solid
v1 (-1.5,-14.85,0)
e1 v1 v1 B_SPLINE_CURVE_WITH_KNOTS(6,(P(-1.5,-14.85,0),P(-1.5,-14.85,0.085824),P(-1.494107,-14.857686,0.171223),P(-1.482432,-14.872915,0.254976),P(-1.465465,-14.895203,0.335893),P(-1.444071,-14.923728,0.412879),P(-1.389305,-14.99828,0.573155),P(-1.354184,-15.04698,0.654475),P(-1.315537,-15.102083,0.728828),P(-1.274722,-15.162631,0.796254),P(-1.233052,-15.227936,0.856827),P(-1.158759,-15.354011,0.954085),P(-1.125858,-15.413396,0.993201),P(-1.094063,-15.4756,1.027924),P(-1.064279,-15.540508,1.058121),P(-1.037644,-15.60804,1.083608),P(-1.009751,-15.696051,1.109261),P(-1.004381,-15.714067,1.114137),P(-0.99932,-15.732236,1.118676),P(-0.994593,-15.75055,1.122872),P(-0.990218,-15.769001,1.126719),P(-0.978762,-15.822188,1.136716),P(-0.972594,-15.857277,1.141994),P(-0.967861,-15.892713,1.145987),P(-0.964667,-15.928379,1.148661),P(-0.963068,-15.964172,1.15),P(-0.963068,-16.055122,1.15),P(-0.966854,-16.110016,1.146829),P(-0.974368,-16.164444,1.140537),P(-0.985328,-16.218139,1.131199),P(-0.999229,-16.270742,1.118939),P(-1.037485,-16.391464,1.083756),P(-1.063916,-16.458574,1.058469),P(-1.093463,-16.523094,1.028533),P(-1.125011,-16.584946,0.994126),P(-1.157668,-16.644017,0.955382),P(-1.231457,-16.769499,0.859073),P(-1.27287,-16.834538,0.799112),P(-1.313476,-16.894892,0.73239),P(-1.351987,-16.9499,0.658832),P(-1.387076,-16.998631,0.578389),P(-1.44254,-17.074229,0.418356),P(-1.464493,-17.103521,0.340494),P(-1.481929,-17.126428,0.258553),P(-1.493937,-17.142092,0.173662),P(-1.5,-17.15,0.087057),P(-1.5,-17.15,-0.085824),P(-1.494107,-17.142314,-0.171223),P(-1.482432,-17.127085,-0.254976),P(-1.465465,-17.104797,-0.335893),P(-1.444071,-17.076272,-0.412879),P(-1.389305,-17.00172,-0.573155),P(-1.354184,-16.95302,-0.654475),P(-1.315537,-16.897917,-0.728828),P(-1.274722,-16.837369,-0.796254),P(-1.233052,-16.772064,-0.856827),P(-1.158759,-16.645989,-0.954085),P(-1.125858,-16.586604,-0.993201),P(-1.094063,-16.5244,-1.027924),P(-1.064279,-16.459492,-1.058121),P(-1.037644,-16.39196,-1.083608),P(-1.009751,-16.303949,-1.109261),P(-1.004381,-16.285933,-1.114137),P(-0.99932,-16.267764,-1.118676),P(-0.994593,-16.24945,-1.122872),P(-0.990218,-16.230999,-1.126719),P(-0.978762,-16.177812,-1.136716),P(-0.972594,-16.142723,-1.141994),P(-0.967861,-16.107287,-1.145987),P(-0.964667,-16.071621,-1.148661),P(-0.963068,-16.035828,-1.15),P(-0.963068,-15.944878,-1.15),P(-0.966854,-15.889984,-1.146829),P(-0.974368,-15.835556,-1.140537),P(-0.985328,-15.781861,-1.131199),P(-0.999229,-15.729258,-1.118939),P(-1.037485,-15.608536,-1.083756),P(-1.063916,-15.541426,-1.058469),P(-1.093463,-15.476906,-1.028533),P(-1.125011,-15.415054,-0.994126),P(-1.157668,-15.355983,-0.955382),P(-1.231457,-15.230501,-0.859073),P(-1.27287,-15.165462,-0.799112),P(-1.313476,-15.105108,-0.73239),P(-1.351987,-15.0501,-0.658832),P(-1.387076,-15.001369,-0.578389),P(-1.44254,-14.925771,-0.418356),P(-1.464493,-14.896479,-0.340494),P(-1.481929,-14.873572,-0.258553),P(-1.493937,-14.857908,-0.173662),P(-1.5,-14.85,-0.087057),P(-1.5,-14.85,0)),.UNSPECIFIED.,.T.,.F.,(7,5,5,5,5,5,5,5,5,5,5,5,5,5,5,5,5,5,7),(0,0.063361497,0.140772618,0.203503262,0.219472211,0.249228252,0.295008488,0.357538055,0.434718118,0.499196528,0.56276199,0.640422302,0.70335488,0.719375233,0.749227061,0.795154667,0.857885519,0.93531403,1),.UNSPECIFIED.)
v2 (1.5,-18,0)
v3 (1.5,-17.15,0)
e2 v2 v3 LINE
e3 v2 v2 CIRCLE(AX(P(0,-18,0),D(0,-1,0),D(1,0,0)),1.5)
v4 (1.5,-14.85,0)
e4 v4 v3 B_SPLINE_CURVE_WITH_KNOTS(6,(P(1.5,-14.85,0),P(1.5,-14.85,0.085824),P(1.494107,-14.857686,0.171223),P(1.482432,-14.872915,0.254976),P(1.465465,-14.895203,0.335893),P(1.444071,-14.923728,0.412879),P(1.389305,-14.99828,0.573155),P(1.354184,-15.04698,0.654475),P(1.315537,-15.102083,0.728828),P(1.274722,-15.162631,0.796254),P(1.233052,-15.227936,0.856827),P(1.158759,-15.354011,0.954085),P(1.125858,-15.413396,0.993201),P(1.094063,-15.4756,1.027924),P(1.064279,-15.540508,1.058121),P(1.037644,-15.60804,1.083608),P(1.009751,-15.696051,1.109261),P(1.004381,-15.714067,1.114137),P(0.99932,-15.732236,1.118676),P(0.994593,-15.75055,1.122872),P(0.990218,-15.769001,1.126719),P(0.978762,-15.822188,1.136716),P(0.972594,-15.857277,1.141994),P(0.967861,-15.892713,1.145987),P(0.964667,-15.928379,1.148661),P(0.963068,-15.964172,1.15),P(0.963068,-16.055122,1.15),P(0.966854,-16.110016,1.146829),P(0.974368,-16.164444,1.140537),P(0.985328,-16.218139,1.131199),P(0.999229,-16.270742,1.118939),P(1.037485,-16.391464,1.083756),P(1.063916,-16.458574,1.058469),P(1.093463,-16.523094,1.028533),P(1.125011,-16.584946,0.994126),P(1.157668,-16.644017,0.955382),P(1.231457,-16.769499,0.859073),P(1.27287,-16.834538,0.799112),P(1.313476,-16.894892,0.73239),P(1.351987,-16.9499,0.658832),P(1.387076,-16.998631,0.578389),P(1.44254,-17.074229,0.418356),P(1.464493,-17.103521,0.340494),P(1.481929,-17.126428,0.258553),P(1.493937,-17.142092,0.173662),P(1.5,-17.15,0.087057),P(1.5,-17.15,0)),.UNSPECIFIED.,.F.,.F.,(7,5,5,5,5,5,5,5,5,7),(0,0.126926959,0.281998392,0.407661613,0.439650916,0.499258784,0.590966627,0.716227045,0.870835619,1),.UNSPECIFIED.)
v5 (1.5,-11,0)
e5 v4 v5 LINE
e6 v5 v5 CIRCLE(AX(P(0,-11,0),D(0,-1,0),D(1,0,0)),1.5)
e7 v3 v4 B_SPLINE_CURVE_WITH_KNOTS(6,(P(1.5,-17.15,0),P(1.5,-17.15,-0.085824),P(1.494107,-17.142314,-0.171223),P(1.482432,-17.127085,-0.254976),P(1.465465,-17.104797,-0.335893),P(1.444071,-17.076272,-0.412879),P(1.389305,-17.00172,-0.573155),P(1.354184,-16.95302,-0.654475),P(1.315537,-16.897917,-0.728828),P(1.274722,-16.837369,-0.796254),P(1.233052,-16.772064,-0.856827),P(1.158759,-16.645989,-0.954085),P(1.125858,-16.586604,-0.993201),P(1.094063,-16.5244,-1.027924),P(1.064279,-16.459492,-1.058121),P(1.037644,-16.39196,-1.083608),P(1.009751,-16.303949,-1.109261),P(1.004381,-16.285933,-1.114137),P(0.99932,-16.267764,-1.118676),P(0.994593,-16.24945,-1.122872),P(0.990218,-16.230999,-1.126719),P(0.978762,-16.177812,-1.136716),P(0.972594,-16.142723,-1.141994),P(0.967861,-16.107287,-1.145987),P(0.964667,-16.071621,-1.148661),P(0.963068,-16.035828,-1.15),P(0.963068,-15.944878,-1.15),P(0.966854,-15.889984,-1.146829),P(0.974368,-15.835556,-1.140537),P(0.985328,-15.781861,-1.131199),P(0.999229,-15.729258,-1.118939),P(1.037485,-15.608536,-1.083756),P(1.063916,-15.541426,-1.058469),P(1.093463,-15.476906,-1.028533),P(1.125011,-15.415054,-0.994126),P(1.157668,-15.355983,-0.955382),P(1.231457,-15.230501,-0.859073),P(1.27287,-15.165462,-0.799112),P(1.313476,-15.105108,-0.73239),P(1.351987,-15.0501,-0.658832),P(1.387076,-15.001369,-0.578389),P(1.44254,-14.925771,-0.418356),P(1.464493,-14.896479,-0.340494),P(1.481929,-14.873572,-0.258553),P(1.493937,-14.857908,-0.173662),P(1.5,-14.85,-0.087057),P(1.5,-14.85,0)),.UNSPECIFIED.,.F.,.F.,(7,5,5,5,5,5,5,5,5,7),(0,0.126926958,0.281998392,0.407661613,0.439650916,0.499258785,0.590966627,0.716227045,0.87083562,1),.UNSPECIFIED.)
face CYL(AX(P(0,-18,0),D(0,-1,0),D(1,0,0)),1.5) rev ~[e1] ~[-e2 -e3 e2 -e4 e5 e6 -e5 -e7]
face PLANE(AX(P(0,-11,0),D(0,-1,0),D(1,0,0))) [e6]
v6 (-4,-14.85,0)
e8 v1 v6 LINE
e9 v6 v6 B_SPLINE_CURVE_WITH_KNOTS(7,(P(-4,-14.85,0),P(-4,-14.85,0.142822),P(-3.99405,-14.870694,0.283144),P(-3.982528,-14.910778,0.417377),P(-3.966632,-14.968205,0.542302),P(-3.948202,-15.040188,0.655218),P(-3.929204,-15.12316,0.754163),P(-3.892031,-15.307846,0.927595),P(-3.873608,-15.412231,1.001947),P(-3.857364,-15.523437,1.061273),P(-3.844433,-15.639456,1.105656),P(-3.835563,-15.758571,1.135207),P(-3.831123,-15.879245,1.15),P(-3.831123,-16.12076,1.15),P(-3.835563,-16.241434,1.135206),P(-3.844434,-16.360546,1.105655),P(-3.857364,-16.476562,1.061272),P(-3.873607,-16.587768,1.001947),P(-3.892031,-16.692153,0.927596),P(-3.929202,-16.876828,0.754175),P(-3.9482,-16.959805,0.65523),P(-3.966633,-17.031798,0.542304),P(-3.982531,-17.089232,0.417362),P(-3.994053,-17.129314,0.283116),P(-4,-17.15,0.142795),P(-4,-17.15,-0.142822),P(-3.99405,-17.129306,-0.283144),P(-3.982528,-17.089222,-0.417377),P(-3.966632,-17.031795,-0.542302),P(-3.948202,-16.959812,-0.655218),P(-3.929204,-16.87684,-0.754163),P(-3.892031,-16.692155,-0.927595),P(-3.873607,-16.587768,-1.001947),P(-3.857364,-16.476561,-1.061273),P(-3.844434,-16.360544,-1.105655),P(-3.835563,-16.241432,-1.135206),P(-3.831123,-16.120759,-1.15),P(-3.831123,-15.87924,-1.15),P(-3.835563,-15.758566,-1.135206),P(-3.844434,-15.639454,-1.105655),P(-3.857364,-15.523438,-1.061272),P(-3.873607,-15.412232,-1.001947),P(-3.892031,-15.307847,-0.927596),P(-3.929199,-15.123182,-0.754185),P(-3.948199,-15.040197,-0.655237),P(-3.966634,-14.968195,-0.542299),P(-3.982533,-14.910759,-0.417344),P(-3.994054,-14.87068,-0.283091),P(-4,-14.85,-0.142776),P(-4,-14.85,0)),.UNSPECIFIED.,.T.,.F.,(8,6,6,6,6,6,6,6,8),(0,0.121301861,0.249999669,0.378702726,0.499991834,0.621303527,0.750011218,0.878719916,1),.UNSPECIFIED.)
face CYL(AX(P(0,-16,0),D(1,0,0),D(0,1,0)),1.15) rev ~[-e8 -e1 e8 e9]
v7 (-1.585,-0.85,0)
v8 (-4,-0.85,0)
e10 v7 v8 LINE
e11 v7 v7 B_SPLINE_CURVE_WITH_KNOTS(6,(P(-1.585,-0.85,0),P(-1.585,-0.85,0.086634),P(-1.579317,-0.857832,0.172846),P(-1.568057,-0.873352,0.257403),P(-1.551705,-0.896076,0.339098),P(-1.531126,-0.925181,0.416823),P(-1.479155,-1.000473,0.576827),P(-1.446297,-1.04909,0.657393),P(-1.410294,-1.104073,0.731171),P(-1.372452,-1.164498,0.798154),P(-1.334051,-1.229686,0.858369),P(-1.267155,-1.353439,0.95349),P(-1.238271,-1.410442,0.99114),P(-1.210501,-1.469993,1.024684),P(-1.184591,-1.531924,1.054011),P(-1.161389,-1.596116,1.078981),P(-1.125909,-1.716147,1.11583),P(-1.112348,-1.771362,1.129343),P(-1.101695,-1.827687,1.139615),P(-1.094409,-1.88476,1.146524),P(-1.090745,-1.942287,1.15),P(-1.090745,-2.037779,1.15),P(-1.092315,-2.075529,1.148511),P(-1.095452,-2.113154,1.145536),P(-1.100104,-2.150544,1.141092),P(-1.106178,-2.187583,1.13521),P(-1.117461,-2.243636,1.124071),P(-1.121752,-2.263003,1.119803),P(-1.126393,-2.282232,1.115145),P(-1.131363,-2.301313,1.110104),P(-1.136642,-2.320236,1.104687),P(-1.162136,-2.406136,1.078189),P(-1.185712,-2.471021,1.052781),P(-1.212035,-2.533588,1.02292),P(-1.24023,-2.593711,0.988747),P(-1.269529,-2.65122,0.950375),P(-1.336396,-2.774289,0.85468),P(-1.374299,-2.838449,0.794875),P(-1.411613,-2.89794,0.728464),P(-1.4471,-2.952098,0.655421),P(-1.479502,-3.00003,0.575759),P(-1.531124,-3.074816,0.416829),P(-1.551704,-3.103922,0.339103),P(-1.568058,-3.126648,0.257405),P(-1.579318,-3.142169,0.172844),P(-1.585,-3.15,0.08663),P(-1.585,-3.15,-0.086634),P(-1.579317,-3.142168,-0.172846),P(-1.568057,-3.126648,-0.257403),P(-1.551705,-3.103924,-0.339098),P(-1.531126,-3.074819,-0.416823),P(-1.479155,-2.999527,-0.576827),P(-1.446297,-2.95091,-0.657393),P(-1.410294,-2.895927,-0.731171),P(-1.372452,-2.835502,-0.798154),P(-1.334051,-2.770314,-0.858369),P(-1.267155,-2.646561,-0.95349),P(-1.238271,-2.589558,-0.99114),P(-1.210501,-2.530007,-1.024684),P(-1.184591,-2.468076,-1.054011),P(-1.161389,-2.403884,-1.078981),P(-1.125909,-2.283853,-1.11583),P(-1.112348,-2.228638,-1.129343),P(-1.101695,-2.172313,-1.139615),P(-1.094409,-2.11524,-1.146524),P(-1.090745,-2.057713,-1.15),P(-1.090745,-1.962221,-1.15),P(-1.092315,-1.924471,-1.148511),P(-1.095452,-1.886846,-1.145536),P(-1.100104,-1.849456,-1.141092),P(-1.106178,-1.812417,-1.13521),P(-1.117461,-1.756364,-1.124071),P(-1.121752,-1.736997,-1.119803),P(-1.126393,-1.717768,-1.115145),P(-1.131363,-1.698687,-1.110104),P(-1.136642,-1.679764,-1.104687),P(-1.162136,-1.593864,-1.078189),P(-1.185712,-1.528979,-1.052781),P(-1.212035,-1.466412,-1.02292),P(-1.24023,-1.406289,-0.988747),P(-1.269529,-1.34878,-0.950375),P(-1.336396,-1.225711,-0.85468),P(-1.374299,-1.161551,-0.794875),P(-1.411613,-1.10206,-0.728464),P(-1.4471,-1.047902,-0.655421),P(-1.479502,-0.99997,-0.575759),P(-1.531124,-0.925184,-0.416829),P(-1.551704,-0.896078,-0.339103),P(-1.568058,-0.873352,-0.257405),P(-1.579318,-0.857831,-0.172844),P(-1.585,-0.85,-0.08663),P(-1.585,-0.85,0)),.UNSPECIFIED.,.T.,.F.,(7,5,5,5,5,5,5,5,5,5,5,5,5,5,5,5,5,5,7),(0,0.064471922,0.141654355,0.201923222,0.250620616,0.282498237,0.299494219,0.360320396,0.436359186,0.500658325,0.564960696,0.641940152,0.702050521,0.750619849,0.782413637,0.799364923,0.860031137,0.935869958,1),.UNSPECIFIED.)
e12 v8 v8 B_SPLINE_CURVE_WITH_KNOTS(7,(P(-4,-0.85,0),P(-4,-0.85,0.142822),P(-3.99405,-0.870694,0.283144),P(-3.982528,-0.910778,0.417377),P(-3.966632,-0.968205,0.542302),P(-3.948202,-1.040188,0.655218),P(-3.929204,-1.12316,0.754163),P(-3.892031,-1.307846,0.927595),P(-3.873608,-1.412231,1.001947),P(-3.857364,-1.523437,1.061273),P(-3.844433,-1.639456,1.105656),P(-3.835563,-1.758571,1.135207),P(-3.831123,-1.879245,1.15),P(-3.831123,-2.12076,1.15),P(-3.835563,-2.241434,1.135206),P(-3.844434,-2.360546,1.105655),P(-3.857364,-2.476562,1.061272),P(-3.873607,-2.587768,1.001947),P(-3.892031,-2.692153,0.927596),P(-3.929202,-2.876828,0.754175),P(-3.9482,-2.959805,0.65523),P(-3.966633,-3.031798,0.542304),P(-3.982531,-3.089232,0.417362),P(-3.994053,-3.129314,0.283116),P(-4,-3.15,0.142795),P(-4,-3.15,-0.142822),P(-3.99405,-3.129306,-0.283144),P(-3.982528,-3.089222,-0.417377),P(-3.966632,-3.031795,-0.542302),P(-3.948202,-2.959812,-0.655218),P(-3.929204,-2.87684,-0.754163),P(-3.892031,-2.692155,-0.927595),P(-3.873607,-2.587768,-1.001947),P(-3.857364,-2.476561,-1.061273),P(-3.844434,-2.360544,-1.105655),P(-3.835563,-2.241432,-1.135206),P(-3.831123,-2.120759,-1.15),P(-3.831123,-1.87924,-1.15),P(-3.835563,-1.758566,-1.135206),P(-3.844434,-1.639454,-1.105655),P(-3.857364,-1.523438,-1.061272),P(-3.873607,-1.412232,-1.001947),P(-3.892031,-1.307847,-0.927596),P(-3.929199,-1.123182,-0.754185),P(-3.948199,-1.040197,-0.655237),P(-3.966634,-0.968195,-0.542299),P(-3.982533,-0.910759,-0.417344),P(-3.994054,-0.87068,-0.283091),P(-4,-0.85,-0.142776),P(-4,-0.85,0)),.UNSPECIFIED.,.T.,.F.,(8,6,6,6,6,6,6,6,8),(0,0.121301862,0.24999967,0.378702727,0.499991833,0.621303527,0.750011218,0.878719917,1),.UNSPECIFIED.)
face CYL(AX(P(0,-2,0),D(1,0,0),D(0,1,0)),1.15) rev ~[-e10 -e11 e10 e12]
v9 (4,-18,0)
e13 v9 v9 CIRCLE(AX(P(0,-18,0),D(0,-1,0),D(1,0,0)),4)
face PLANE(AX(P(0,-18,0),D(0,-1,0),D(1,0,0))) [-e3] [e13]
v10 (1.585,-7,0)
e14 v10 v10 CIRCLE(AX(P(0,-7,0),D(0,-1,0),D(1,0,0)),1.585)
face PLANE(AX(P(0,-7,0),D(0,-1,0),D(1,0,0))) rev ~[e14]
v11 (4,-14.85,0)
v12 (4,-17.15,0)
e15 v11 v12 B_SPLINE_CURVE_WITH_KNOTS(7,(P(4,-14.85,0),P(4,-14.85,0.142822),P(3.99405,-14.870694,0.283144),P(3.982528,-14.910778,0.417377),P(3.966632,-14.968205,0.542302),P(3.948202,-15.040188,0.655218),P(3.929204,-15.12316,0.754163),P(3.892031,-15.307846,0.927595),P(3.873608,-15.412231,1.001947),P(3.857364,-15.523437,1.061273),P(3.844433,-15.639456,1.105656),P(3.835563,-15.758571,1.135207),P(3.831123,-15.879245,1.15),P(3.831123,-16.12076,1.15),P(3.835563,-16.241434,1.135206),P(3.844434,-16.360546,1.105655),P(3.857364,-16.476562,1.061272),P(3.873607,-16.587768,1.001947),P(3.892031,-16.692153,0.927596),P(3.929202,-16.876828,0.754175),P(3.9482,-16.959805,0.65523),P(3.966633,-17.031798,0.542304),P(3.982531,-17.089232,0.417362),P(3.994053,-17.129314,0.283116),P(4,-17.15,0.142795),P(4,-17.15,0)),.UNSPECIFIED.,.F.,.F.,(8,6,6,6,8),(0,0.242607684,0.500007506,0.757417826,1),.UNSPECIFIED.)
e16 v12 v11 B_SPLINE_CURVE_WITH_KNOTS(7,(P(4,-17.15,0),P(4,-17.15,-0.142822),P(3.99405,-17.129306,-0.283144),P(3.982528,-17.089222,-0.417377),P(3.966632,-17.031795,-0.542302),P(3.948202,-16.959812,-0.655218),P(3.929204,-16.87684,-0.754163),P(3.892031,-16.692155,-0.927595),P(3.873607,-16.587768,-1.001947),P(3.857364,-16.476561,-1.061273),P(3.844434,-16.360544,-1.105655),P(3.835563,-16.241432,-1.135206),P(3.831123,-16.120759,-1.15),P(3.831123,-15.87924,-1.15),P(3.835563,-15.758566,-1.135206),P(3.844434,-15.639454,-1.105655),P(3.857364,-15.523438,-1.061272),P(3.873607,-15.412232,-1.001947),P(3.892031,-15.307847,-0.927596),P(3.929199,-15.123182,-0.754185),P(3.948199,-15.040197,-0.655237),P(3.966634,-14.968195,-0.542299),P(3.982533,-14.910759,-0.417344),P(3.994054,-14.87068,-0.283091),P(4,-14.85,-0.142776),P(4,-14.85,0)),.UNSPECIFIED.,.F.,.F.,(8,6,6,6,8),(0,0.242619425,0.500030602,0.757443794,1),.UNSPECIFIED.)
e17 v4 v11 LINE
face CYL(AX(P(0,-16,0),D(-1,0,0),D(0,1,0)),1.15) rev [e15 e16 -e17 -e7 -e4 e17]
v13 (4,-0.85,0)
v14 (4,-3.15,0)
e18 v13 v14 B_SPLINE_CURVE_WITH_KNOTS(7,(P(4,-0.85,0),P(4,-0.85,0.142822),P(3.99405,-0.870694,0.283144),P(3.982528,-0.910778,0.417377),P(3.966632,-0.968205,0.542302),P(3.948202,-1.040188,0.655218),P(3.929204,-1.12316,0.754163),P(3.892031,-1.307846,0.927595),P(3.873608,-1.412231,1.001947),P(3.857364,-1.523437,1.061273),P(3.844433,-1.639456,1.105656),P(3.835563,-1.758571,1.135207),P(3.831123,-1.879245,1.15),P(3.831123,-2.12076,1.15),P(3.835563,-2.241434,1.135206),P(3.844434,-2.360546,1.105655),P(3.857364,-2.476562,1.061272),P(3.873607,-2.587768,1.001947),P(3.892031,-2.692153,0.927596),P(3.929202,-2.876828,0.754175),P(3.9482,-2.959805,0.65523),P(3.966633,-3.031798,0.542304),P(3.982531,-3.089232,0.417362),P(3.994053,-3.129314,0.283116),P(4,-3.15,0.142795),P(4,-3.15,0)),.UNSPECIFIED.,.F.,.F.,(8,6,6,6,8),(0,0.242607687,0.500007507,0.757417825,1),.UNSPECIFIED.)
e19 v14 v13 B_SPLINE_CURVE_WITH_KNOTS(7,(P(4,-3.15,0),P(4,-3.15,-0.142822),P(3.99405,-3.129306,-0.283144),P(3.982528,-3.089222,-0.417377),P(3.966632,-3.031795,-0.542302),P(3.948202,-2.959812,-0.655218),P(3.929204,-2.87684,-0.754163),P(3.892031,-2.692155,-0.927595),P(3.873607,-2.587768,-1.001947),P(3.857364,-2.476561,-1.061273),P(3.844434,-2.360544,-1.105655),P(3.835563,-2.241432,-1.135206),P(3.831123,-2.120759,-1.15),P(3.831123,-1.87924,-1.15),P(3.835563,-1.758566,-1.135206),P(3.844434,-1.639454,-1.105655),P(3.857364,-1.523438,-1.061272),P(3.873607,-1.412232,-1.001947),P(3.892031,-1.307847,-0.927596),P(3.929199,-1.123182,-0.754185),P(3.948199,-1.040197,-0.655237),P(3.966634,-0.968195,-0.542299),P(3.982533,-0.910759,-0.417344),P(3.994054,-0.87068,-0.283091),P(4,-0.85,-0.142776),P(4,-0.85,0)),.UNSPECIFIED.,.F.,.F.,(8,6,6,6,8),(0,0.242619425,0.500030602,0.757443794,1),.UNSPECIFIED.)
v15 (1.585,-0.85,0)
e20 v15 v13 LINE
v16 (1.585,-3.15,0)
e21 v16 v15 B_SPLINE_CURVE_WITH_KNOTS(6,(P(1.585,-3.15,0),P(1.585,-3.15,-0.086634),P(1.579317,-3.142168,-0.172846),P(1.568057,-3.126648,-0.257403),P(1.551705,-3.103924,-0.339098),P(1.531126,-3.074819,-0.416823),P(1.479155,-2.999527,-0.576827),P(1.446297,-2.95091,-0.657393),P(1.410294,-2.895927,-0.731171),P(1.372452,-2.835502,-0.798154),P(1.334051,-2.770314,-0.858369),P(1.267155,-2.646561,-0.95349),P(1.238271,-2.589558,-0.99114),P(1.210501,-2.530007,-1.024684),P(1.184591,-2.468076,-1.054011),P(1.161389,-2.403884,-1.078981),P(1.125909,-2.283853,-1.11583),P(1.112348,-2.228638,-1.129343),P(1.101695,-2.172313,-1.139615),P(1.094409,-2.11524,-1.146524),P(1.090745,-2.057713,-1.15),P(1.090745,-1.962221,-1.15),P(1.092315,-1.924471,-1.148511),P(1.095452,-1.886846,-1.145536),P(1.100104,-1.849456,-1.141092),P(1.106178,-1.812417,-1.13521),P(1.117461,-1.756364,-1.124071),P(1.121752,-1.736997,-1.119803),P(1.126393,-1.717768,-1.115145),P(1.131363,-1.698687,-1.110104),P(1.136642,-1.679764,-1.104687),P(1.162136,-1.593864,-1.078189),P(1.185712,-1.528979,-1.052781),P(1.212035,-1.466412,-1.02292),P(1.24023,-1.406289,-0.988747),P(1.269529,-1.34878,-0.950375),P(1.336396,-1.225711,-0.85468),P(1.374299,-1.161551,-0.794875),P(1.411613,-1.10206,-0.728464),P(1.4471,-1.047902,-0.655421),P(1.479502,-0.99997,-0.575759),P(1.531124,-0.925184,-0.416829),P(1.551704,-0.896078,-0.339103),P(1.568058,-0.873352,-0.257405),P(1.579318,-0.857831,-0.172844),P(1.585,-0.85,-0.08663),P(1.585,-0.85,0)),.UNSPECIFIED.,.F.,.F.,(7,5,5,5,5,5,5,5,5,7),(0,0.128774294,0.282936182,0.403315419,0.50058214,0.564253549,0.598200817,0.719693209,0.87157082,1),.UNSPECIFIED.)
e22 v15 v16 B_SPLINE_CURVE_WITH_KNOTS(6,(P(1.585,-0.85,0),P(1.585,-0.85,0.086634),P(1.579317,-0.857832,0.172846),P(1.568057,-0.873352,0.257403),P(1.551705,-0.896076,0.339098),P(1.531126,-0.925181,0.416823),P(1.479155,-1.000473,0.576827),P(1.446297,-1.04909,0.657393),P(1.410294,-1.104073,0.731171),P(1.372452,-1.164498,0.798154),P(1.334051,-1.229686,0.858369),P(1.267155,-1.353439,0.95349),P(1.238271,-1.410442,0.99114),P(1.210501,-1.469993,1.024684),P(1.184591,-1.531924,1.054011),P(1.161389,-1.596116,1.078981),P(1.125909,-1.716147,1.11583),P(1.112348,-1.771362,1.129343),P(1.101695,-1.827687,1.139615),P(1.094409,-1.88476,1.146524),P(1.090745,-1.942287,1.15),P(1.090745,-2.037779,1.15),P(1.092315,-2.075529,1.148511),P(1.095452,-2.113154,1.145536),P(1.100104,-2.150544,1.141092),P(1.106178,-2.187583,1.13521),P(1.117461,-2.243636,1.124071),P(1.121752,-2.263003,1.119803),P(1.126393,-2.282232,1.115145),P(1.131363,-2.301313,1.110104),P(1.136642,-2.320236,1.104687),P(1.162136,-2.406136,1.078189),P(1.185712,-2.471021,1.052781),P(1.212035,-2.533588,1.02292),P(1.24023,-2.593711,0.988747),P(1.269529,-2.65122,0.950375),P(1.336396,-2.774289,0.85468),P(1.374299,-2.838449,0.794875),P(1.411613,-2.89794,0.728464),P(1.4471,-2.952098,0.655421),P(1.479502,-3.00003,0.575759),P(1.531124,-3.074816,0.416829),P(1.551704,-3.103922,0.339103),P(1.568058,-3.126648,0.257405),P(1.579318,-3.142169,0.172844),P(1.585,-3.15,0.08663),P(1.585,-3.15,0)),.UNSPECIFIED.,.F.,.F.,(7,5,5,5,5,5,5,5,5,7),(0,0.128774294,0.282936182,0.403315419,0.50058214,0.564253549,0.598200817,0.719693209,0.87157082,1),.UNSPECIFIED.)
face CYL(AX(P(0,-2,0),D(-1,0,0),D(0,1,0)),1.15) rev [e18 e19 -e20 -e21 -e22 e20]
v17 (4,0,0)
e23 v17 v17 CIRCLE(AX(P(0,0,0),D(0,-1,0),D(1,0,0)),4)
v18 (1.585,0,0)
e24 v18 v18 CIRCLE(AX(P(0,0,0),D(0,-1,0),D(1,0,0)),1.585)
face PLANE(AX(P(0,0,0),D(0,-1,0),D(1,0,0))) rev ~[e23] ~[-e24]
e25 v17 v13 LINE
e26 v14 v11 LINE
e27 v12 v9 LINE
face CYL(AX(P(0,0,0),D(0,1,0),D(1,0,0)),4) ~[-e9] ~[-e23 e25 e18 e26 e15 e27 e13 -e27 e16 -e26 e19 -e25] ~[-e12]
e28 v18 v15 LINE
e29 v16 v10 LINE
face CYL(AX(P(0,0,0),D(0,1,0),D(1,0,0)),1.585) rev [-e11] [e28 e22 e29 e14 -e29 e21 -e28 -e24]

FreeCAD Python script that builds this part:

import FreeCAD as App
import Part
import Sketcher

V = App.Vector

doc = App.newDocument("Part")
body = doc.addObject("PartDesign::Body", "Body")

# Sketch on XZ plane
sketch1 = body.newObject("Sketcher::SketchObject", "Sketch")
sketch1.AttachmentSupport = (doc.getObject("XZ_Plane"), [""])
sketch1.MapMode = "FlatFace"
sketch1.addGeometry(Part.Circle(V(0, 0, 0), V(0, 0, 1), 4), False)
sketch1.addConstraint(Sketcher.Constraint("Coincident", 0, 3, -1, 1))
sketch1.addConstraint(Sketcher.Constraint("Diameter", 0, 8.0))
pad1 = body.newObject("PartDesign::Pad", "Pad")
pad1.Profile = sketch1
pad1.Length = 18

# Sketch on YZ plane
sketch2 = body.newObject("Sketcher::SketchObject", "Sketch001")
sketch2.AttachmentSupport = (doc.getObject("YZ_Plane"), [""])
sketch2.MapMode = "FlatFace"
sketch2.addGeometry(Part.Circle(V(-16, 0, 0), V(0, 0, 1), 1.1), False)
sketch2.addGeometry(Part.Circle(V(-2, 0, 0), V(0, 0, 1), 1.1), False)
sketch2.addConstraint(Sketcher.Constraint("Equal", 0, 1))
sketch2.addConstraint(Sketcher.Constraint("PointOnObject", 0, 3, -1))
sketch2.addConstraint(Sketcher.Constraint("PointOnObject", 1, 3, -1))
sketch2.addConstraint(Sketcher.Constraint("Diameter", 0, 2.3))
sketch2.addConstraint(Sketcher.Constraint("DistanceX", 0, 3, -1, 1, 16.0))
sketch2.addConstraint(Sketcher.Constraint("DistanceX", 1, 3, -1, 1, 2.0))
pocket1 = body.newObject("PartDesign::Pocket", "Pocket")
pocket1.Profile = sketch2
pocket1.Type = "ThroughAll"
pocket1.Midplane = True

# Sketch on XZ plane
sketch3 = body.newObject("Sketcher::SketchObject", "Sketch002")
sketch3.AttachmentSupport = (doc.getObject("XZ_Plane"), [""])
sketch3.MapMode = "FlatFace"
sketch3.addGeometry(Part.Circle(V(0, 0, 0), V(0, 0, 1), 1.6), False)
sketch3.addConstraint(Sketcher.Constraint("Coincident", 0, 3, -1, 1))
sketch3.addConstraint(Sketcher.Constraint("Diameter", 0, 3.17))
pocket2 = body.newObject("PartDesign::Pocket", "Pocket001")
pocket2.Profile = sketch3
pocket2.Length = 7
pocket2.Reversed = True

# Sketch on XZ plane
sketch4 = body.newObject("Sketcher::SketchObject", "Sketch003")
sketch4.AttachmentSupport = (doc.getObject("XZ_Plane"), [""])
sketch4.MapMode = "FlatFace"
sketch4.AttachmentOffset = App.Placement(V(0, 0, 18), App.Rotation())
sketch4.addGeometry(Part.Circle(V(0, 0, 0), V(0, 0, 1), 1.5), False)
sketch4.addConstraint(Sketcher.Constraint("Coincident", 0, 3, -1, 1))
sketch4.addConstraint(Sketcher.Constraint("Diameter", 0, 3.0))
pocket3 = body.newObject("PartDesign::Pocket", "Pocket002")
pocket3.Profile = sketch4
pocket3.Length = 7

doc.recompute()
